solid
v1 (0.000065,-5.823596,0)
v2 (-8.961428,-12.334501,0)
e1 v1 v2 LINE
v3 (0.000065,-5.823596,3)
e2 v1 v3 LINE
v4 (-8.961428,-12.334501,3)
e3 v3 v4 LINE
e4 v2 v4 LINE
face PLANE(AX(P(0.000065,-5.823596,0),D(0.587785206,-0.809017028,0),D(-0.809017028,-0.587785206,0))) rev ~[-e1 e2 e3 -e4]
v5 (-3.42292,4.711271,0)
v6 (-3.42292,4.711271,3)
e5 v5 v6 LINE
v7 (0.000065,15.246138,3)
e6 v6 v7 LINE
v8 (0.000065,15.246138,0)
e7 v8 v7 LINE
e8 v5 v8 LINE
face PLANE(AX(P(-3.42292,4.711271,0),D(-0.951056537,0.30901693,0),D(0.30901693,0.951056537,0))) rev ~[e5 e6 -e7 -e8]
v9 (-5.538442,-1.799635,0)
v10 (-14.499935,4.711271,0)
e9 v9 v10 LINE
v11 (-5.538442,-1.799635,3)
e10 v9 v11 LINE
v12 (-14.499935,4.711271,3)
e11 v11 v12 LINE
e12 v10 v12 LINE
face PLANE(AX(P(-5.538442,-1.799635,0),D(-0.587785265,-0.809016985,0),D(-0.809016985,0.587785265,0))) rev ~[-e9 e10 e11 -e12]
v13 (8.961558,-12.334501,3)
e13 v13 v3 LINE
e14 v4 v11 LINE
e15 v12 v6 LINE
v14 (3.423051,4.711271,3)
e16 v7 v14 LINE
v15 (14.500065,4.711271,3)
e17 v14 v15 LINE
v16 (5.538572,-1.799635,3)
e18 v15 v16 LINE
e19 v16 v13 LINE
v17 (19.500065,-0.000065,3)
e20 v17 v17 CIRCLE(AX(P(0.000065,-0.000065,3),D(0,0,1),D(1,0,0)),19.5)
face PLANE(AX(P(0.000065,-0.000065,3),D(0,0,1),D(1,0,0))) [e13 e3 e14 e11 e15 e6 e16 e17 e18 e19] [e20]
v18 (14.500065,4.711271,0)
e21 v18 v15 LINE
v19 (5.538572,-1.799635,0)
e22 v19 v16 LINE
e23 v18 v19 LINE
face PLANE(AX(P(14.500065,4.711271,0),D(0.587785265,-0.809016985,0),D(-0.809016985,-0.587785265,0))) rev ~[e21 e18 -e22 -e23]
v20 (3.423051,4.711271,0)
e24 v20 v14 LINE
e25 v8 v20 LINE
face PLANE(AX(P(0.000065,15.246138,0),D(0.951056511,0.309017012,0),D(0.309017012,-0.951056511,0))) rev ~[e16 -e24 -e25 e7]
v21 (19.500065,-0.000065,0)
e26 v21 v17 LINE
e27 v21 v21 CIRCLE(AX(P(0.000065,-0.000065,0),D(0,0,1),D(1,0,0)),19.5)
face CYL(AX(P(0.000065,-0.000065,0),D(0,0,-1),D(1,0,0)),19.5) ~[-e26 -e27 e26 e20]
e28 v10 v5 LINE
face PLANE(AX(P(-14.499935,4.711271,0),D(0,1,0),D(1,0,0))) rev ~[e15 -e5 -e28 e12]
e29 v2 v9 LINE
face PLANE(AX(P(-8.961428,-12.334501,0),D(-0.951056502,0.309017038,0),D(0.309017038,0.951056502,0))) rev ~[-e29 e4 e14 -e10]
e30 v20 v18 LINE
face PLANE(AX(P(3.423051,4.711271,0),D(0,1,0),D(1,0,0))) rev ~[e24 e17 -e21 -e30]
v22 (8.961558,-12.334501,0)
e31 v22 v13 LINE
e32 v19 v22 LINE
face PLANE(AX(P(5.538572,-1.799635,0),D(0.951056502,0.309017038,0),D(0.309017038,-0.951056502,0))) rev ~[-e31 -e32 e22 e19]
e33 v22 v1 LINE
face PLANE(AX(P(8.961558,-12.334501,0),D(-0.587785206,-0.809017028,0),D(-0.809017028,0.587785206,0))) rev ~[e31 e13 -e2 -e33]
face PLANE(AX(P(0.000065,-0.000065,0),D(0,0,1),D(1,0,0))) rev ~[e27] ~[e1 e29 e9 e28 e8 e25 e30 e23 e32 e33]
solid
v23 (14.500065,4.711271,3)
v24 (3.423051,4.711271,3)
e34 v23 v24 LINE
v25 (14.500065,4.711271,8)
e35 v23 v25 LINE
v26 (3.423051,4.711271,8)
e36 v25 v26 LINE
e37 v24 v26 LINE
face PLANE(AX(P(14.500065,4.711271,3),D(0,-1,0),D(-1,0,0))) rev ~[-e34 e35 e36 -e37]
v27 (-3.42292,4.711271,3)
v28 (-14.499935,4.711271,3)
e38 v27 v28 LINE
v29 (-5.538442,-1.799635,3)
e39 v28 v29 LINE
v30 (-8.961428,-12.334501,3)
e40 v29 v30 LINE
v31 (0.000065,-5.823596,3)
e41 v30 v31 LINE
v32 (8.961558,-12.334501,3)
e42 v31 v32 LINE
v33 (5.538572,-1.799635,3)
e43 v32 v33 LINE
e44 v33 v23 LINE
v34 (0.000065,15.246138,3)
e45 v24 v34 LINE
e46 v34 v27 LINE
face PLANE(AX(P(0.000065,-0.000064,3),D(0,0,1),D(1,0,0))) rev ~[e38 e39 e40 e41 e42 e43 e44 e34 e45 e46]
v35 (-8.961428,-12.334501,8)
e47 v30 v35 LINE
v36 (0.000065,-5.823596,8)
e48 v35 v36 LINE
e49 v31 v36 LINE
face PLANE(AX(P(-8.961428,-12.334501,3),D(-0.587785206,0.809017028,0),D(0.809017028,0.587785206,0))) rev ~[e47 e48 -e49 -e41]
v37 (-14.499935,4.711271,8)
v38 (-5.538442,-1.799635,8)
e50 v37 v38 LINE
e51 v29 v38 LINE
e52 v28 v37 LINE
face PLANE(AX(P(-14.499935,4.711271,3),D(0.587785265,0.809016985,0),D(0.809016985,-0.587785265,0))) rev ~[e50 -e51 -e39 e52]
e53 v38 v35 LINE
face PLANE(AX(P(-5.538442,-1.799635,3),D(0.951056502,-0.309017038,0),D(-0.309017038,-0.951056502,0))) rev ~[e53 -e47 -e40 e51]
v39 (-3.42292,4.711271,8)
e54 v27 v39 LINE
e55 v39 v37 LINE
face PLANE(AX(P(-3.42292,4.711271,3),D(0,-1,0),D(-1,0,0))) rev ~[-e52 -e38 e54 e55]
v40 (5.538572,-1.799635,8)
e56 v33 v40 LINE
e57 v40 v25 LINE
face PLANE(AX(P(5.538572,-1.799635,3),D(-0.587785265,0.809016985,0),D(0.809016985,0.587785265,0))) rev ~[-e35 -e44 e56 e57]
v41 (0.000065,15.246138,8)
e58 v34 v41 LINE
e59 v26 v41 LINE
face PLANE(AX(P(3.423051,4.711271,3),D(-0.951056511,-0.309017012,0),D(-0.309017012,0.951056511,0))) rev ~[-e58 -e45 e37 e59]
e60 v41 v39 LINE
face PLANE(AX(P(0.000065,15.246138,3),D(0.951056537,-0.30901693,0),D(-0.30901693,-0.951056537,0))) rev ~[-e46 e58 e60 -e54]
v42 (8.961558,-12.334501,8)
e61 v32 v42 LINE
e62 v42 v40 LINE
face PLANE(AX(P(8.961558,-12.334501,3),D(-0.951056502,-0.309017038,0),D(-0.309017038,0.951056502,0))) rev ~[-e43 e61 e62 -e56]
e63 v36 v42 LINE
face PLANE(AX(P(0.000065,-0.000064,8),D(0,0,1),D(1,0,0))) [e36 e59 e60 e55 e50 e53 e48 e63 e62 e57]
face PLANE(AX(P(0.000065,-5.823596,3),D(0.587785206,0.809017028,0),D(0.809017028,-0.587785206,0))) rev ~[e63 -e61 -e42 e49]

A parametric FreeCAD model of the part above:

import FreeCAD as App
import Part
import Sketcher
Q = App.Units.Quantity


def add_polygon(sketch, points):
    """Adds a closed chain of lines whose ends are joined by coincident constraints."""
    first, n = sketch.GeometryCount, len(points)
    for a, b in zip(points, points[1:] + points[:1]):
        sketch.addGeometry(Part.LineSegment(App.Vector(*a, 0), App.Vector(*b, 0)), False)
    for i in range(n):
        sketch.addConstraint(Sketcher.Constraint("Coincident", first + i, 2, first + (i + 1) % n, 1))

doc = App.newDocument("Part")
body = doc.addObject("PartDesign::Body", "Body")

# Sketch on XY plane
sketch1 = doc.addObject("Sketcher::SketchObject", "Sketch")
body.addObject(sketch1)
sketch1.AttachmentSupport = (doc.XY_Plane, [""])
sketch1.MapMode = "FlatFace"
sketch1.addGeometry(Part.Circle(App.Vector(0, 0, 0), App.Vector(0, 0, 1), 20), False)  # 0
add_polygon(sketch1, [(9, -12), (0, -6), (-9, -12), (-6, -2), (-14, 5), (-3, 5), (0, 15), (3, 5), (15, 5), (6, -2)])  # lines 1-10
sketch1.addConstraint(Sketcher.Constraint("Horizontal", 5))
sketch1.addConstraint(Sketcher.Constraint("Horizontal", 8))
sketch1.addConstraint(Sketcher.Constraint("Parallel", 1, 4))
sketch1.addConstraint(Sketcher.Constraint("Parallel", 3, 6))
sketch1.addConstraint(Sketcher.Constraint("Parallel", 2, 9))
sketch1.addConstraint(Sketcher.Constraint("Parallel", 7, 10))
sketch1.addConstraint(Sketcher.Constraint("Horizontal", 5, 2, 7, 2))
sketch1.addConstraint(Sketcher.Constraint("Horizontal", 3, 2, 9, 2))
sketch1.addConstraint(Sketcher.Constraint("Horizontal", 2, 2, 10, 2))
sketch1.addConstraint(Sketcher.Constraint("Vertical", 0, 3, 1, 2))
sketch1.addConstraint(Sketcher.Constraint("Vertical", 1, 2, 6, 2))
sketch1.addConstraint(Sketcher.Constraint("Equal", 5, 8))
sketch1.addConstraint(Sketcher.Constraint("Equal", 1, 2))
sketch1.addConstraint(Sketcher.Constraint("Equal", 2, 3))
sketch1.addConstraint(Sketcher.Constraint("Equal", 3, 4))
sketch1.addConstraint(Sketcher.Constraint("Equal", 4, 6))
sketch1.addConstraint(Sketcher.Constraint("Diameter", 0, 39.0))
sketch1.addConstraint(Sketcher.Constraint("Angle", 1, Q("144.000003 deg")))
sketch1.addConstraint(Sketcher.Constraint("Angle", 3, Q("71.999997 deg")))
sketch1.addConstraint(Sketcher.Constraint("DistanceX", 4, 2, 0, 3, 14.5))
sketch1.addConstraint(Sketcher.Constraint("DistanceY", 2, 2, -1, 1, 12.334501))
sketch1.addConstraint(Sketcher.Constraint("DistanceX", 5, 2, -1, 1, 3.42292))
sketch1.addConstraint(Sketcher.Constraint("DistanceY", 1, 2, 0, 3, 5.823531))
pad1 = doc.addObject("PartDesign::Pad", "Pad")
body.addObject(pad1)
pad1.Profile = sketch1
pad1.Length = 3
body2 = doc.addObject("PartDesign::Body", "Body001")

# Sketch on XY plane
sketch2 = doc.addObject("Sketcher::SketchObject", "Sketch001")
body2.addObject(sketch2)
sketch2.AttachmentSupport = (doc.getObject("XY_Plane001"), [""])
sketch2.MapMode = "FlatFace"
sketch2.AttachmentOffset = App.Placement(App.Vector(0, 0, 3), App.Rotation())
add_polygon(sketch2, [(0, 15), (-3, 5), (-14, 5), (-6, -2), (-9, -12), (0, -6), (9, -12), (6, -2), (15, 5), (3, 5)])  # lines 0-9
sketch2.addConstraint(Sketcher.Constraint("Horizontal", 1))
sketch2.addConstraint(Sketcher.Constraint("Horizontal", 8))
sketch2.addConstraint(Sketcher.Constraint("Parallel", 0, 3))
sketch2.addConstraint(Sketcher.Constraint("Parallel", 2, 5))
sketch2.addConstraint(Sketcher.Constraint("Parallel", 4, 7))
sketch2.addConstraint(Sketcher.Constraint("Parallel", 6, 9))
sketch2.addConstraint(Sketcher.Constraint("Horizontal", 3, 2, 5, 2))
sketch2.addConstraint(Sketcher.Constraint("Horizontal", 2, 2, 6, 2))
sketch2.addConstraint(Sketcher.Constraint("Horizontal", 1, 2, 7, 2))
sketch2.addConstraint(Sketcher.Constraint("Vertical", 4, 2, 9, 2))
sketch2.addConstraint(Sketcher.Constraint("Equal", 1, 8))
sketch2.addConstraint(Sketcher.Constraint("Equal", 0, 2))
sketch2.addConstraint(Sketcher.Constraint("Equal", 2, 3))
sketch2.addConstraint(Sketcher.Constraint("Equal", 3, 4))
sketch2.addConstraint(Sketcher.Constraint("Equal", 4, 5))
sketch2.addConstraint(Sketcher.Constraint("Angle", 0, Q("-107.999996 deg")))
sketch2.addConstraint(Sketcher.Constraint("Angle", 2, Q("-36.000001 deg")))
sketch2.addConstraint(Sketcher.Constraint("DistanceX", 1, 2, 4, 2, 14.5))
sketch2.addConstraint(Sketcher.Constraint("DistanceY", 3, 2, -1, 1, 12.334501))
sketch2.addConstraint(Sketcher.Constraint("DistanceX", 0, 2, -1, 1, 3.42292))
pad2 = doc.addObject("PartDesign::Pad", "Pad001")
body2.addObject(pad2)
pad2.Profile = sketch2
pad2.Length = 5

doc.recompute()
